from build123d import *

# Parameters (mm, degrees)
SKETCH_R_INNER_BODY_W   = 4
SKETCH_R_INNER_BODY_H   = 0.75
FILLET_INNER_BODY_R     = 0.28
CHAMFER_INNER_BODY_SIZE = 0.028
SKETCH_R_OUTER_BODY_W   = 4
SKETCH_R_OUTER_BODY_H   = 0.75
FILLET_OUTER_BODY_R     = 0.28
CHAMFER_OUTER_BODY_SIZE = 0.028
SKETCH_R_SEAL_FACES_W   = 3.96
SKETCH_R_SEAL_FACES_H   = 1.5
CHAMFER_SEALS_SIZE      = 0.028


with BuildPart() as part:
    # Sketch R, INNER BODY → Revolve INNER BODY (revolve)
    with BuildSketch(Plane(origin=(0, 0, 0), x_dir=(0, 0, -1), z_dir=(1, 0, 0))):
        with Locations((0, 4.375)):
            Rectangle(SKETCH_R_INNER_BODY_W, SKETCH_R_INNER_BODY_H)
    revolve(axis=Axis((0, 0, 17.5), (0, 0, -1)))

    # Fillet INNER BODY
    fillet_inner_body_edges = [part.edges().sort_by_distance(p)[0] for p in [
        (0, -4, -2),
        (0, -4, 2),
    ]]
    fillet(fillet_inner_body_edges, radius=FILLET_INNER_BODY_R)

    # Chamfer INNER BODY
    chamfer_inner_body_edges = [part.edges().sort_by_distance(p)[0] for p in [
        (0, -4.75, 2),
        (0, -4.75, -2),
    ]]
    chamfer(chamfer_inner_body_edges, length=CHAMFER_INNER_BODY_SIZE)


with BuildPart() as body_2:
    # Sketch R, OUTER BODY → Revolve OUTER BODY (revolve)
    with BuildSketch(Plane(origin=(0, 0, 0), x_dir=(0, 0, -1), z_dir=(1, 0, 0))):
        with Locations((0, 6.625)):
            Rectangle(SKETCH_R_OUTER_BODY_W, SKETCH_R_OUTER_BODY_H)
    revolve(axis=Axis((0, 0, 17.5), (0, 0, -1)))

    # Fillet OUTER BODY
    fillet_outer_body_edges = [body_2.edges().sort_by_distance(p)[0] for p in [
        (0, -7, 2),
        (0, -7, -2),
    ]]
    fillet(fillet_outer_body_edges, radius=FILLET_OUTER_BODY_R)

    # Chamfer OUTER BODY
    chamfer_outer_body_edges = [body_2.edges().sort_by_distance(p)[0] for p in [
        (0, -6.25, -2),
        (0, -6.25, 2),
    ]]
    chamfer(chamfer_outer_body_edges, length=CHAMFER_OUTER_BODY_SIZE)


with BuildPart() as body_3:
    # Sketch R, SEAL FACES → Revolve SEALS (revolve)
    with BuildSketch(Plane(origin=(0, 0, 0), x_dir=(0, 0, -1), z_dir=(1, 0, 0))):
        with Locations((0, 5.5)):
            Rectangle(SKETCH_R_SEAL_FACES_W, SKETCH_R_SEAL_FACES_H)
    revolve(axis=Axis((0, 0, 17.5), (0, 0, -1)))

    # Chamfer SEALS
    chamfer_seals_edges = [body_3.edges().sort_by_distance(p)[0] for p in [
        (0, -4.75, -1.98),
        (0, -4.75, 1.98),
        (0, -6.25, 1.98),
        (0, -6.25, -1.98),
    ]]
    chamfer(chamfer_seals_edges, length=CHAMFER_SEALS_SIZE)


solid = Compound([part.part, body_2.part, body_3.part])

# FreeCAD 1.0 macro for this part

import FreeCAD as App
import Part
import Sketcher

V = App.Vector


def edges_at(feature, points):
    """Names of the edges that pass closest to the given points."""
    edges = feature.Shape.Edges
    near = lambda p: min(range(len(edges)), key=lambda i: edges[i].distToShape(Part.Vertex(*p))[0])
    return sorted({f"Edge{near(p) + 1}" for p in points})


def add_polygon(sketch, points):
    """Adds a closed chain of lines whose ends are joined by coincident constraints."""
    first, n = sketch.GeometryCount, len(points)
    for a, b in zip(points, points[1:] + points[:1]):
        sketch.addGeometry(Part.LineSegment(App.Vector(*a, 0), App.Vector(*b, 0)), False)
    for i in range(n):
        sketch.addConstraint(Sketcher.Constraint("Coincident", first + i, 2, first + (i + 1) % n, 1))

doc = App.newDocument("Part")
params = doc.addObject("Spreadsheet::Sheet", "Params")
for row, (alias, value) in enumerate([
    ("sketch1_height", "4 mm"),
    ("sketch1_width", "0.75 mm"),
    ("revolution_angle", "360 deg"),
    ("fillet_radius", "0.28 mm"),
    ("chamfer_size", "0.028 mm"),
    ("sketch2_height", "4 mm"),
    ("sketch2_width", "0.75 mm"),
    ("revolution2_angle", "360 deg"),
    ("fillet2_radius", "0.28 mm"),
    ("chamfer2_size", "0.028 mm"),
    ("sketch3_width", "1.5 mm"),
    ("sketch3_height", "3.96 mm"),
    ("revolution3_angle", "360 deg"),
    ("chamfer3_size", "0.028 mm"),
], start=1):
    params.set(f"A{row}", alias)
    params.set(f"B{row}", "=" + value)
    params.setAlias(f"B{row}", alias)

body = doc.addObject("PartDesign::Body", "Body")

# Sketch on YZ plane
sketch1 = body.newObject("Sketcher::SketchObject", "Sketch")
sketch1.AttachmentSupport = (doc.getObject("YZ_Plane"), [""])
sketch1.MapMode = "FlatFace"
add_polygon(sketch1, [(4.8, 2), (4, 2), (4, -2), (4.8, -2)])  # lines 0-3
sketch1.addConstraint([
    Sketcher.Constraint("Horizontal", 0),
    Sketcher.Constraint("Vertical", 1),
    Sketcher.Constraint("Horizontal", 2),
    Sketcher.Constraint("Vertical", 3),
    Sketcher.Constraint("DistanceY", 1, 2, 1, 1, 4.0),
    Sketcher.Constraint("DistanceX", -1, 1, 0, 2, 4.0),
    Sketcher.Constraint("DistanceY", -1, 1, 0, 2, 2.0),
    Sketcher.Constraint("DistanceX", 0, 2, 0, 1, 0.75),
])
sketch1.setExpression("Constraints[8]", "Params.sketch1_height")
sketch1.setExpression("Constraints[11]", "Params.sketch1_width")
revolution = body.newObject("PartDesign::Revolution", "Revolution")
revolution.Profile = sketch1
revolution.ReferenceAxis = (sketch1, ["V_Axis"])
revolution.setExpression("Angle", "Params.revolution_angle")
doc.recompute()

fillet = body.newObject("PartDesign::Fillet", "Fillet")
fillet.Base = (revolution, edges_at(revolution, [(0, -4, -2), (0, -4, 2)]))
fillet.setExpression("Radius", "Params.fillet_radius")
doc.recompute()

chamfer = body.newObject("PartDesign::Chamfer", "Chamfer")
chamfer.Base = (fillet, edges_at(fillet, [(0, -4.75, 2), (0, -4.75, -2)]))
chamfer.setExpression("Size", "Params.chamfer_size")
body2 = doc.addObject("PartDesign::Body", "Body001")

# Sketch on YZ plane
sketch2 = body2.newObject("Sketcher::SketchObject", "Sketch001")
sketch2.AttachmentSupport = (doc.getObject("YZ_Plane001"), [""])
sketch2.MapMode = "FlatFace"
add_polygon(sketch2, [(7, 2), (6.2, 2), (6.2, -2), (7, -2)])  # lines 0-3
sketch2.addConstraint([
    Sketcher.Constraint("Horizontal", 0),
    Sketcher.Constraint("Vertical", 1),
    Sketcher.Constraint("Horizontal", 2),
    Sketcher.Constraint("Vertical", 3),
    Sketcher.Constraint("DistanceY", 1, 2, 1, 1, 4.0),
    Sketcher.Constraint("DistanceY", -1, 1, 0, 2, 2.0),
    Sketcher.Constraint("DistanceX", -1, 1, 2, 2, 7.0),
    Sketcher.Constraint("DistanceX", 0, 2, 0, 1, 0.75),
])
sketch2.setExpression("Constraints[8]", "Params.sketch2_height")
sketch2.setExpression("Constraints[11]", "Params.sketch2_width")
revolution2 = body2.newObject("PartDesign::Revolution", "Revolution001")
revolution2.Profile = sketch2
revolution2.ReferenceAxis = (sketch2, ["V_Axis"])
revolution2.setExpression("Angle", "Params.revolution2_angle")
doc.recompute()

fillet2 = body2.newObject("PartDesign::Fillet", "Fillet001")
fillet2.Base = (revolution2, edges_at(revolution2, [(0, -7, 2), (0, -7, -2)]))
fillet2.setExpression("Radius", "Params.fillet2_radius")
doc.recompute()

chamfer2 = body2.newObject("PartDesign::Chamfer", "Chamfer001")
chamfer2.Base = (fillet2, edges_at(fillet2, [(0, -6.25, -2), (0, -6.25, 2)]))
chamfer2.setExpression("Size", "Params.chamfer2_size")
body3 = doc.addObject("PartDesign::Body", "Body002")

# Sketch on YZ plane
sketch3 = body3.newObject("Sketcher::SketchObject", "Sketch002")
sketch3.AttachmentSupport = (doc.getObject("YZ_Plane002"), [""])
sketch3.MapMode = "FlatFace"
add_polygon(sketch3, [(6.2, 2), (4.8, 2), (4.8, -2), (6.2, -2)])  # lines 0-3
sketch3.addConstraint([
    Sketcher.Constraint("Horizontal", 0),
    Sketcher.Constraint("Vertical", 1),
    Sketcher.Constraint("Horizontal", 2),
    Sketcher.Constraint("Vertical", 3),
    Sketcher.Constraint("DistanceX", 0, 2, 0, 1, 1.5),
    Sketcher.Constraint("DistanceY", 1, 2, 1, 1, 3.96),
    Sketcher.Constraint("DistanceX", -1, 1, 0, 2, 4.75),
    Sketcher.Constraint("DistanceY", -1, 1, 0, 2, 1.98),
])
sketch3.setExpression("Constraints[8]", "Params.sketch3_width")
sketch3.setExpression("Constraints[9]", "Params.sketch3_height")
revolution3 = body3.newObject("PartDesign::Revolution", "Revolution002")
revolution3.Profile = sketch3
revolution3.ReferenceAxis = (sketch3, ["V_Axis"])
revolution3.setExpression("Angle", "Params.revolution3_angle")
doc.recompute()

chamfer3 = body3.newObject("PartDesign::Chamfer", "Chamfer002")
chamfer3.Base = (revolution3, edges_at(revolution3, [
    (0, -4.75, -1.98),
    (0, -4.75, 1.98),
    (0, -6.25, 1.98),
    (0, -6.25, -1.98),
]))
chamfer3.setExpression("Size", "Params.chamfer3_size")

doc.recompute()
